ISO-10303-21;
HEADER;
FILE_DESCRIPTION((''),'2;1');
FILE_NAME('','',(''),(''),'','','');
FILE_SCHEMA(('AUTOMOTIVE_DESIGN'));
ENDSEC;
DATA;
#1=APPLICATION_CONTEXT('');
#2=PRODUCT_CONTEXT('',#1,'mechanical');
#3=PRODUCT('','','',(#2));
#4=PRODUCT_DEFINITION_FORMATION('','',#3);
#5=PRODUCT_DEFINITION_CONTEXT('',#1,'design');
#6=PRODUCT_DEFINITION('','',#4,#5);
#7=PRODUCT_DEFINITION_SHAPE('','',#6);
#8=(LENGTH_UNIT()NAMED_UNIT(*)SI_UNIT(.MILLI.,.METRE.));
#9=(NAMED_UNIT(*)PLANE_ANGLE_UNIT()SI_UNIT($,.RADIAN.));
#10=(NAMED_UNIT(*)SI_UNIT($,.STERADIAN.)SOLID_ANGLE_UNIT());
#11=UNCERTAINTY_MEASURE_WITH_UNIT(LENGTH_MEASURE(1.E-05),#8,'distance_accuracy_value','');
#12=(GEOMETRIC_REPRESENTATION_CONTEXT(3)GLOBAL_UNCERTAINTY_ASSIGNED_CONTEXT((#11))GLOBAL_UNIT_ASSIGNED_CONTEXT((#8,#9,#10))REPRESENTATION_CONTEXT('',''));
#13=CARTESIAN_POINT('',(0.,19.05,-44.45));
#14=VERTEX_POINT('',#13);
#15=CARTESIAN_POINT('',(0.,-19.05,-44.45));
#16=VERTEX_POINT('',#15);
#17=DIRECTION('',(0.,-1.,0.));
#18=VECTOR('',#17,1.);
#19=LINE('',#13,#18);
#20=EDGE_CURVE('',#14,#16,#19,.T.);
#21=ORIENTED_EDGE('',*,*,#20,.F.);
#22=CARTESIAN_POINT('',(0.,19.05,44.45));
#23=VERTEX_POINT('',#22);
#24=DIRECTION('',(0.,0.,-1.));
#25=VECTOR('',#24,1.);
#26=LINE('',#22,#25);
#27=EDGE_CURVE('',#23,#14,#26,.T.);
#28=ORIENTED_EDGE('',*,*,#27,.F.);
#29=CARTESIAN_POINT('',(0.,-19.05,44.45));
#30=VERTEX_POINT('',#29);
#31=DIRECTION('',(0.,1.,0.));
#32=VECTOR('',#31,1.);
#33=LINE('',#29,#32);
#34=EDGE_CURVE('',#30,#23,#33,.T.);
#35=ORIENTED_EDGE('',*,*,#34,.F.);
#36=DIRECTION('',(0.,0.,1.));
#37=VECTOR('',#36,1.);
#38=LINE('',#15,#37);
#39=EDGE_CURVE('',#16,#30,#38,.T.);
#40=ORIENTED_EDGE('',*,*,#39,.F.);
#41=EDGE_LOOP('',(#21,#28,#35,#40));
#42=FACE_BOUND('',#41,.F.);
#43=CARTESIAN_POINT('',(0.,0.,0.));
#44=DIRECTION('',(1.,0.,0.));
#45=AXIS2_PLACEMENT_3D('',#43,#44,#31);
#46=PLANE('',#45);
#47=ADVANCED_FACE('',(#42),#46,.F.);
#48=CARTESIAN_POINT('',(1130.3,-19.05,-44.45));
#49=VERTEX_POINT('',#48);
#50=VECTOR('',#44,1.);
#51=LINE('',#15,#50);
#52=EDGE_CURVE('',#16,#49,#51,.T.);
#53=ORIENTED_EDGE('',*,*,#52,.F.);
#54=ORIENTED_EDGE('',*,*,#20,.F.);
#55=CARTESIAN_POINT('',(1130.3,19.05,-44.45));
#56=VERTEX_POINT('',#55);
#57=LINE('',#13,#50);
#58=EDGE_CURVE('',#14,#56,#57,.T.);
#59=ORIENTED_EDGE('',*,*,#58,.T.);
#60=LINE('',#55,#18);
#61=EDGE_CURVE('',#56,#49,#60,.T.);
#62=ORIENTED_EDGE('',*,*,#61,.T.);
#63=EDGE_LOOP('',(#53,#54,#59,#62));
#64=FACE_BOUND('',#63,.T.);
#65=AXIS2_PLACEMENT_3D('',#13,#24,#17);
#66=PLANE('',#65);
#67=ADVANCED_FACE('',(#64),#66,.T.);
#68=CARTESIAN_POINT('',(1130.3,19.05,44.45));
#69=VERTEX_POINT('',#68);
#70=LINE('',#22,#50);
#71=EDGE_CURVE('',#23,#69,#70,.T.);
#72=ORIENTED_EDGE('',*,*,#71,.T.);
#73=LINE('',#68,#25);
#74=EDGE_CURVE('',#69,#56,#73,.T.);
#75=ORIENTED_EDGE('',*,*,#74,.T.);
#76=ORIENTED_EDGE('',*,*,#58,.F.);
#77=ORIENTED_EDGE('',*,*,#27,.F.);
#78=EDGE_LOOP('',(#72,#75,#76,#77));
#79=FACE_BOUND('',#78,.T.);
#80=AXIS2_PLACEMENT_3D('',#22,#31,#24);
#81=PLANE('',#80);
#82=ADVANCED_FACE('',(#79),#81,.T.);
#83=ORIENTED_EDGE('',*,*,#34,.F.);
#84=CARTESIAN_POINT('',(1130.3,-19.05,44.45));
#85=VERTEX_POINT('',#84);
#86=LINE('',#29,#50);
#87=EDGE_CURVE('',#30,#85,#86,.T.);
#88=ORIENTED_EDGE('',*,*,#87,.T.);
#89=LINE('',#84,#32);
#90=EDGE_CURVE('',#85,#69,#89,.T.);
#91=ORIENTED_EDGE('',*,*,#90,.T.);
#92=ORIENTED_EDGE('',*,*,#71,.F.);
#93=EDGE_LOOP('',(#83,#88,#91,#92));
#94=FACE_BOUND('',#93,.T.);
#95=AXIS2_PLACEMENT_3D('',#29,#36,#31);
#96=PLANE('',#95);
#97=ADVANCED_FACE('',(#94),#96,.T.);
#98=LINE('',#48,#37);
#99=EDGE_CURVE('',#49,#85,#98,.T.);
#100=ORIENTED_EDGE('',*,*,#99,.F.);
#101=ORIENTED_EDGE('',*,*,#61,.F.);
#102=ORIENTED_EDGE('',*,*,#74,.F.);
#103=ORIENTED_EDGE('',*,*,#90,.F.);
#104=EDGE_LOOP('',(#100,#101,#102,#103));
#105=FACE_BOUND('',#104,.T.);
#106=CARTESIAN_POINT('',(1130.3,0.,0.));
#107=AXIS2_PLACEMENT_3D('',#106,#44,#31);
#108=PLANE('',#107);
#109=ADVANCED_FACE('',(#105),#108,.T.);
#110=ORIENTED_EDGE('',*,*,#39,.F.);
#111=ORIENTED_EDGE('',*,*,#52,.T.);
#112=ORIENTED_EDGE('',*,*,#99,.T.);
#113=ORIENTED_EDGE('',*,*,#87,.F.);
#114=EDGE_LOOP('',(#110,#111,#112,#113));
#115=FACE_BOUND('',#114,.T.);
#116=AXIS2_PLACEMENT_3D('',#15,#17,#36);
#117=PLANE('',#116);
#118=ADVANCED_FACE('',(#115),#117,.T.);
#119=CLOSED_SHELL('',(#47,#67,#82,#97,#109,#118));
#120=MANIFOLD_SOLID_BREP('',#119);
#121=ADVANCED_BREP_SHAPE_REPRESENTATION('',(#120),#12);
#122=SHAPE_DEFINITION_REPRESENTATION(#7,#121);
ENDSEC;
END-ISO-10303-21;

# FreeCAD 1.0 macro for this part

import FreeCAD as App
import Part
import Sketcher

V = App.Vector
Q = App.Units.Quantity

doc = App.newDocument("Part")
params = doc.addObject("Spreadsheet::Sheet", "Params")
for row, (alias, value) in enumerate([
    ("sketch1_width", "1.5 in"),
    ("sketch1_height", "3.5 in"),
    ("pad1_length", "44.5 in"),
], start=1):
    params.set(f"A{row}", alias)
    params.set(f"B{row}", "=" + value)
    params.setAlias(f"B{row}", alias)

body = doc.addObject("PartDesign::Body", "Body")

sketch1 = body.newObject("Sketcher::SketchObject", "Sketch")
sketch1.AttachmentSupport = (doc.getObject("YZ_Plane"), [""])
sketch1.MapMode = "FlatFace"
sketch1.addGeometry(Part.LineSegment(V(19, 44, 0), V(-19, 44, 0)), False)
sketch1.addGeometry(Part.LineSegment(V(-19, 44, 0), V(-19, -44, 0)), False)
sketch1.addGeometry(Part.LineSegment(V(-19, -44, 0), V(19, -44, 0)), False)
sketch1.addGeometry(Part.LineSegment(V(19, -44, 0), V(19, 44, 0)), False)
sketch1.addConstraint(Sketcher.Constraint("Coincident", 0, 2, 1, 1))
sketch1.addConstraint(Sketcher.Constraint("Coincident", 1, 2, 2, 1))
sketch1.addConstraint(Sketcher.Constraint("Coincident", 2, 2, 3, 1))
sketch1.addConstraint(Sketcher.Constraint("Coincident", 3, 2, 0, 1))
sketch1.addConstraint(Sketcher.Constraint("Horizontal", 0))
sketch1.addConstraint(Sketcher.Constraint("Vertical", 1))
sketch1.addConstraint(Sketcher.Constraint("Horizontal", 2))
sketch1.addConstraint(Sketcher.Constraint("Vertical", 3))
sketch1.addConstraint(Sketcher.Constraint("Symmetric", 0, 2, 2, 2, -1, 1))
sketch1.addConstraint(Sketcher.Constraint("DistanceX", 0, 2, 0, 1, Q("1.5 in")))
sketch1.addConstraint(Sketcher.Constraint("DistanceY", 1, 2, 1, 1, Q("3.5 in")))
sketch1.setExpression("Constraints[9]", "Params.sketch1_width")
sketch1.setExpression("Constraints[10]", "Params.sketch1_height")
pad1 = body.newObject("PartDesign::Pad", "Pad")
pad1.Profile = sketch1
pad1.setExpression("Length", "Params.pad1_length")

doc.recompute()
